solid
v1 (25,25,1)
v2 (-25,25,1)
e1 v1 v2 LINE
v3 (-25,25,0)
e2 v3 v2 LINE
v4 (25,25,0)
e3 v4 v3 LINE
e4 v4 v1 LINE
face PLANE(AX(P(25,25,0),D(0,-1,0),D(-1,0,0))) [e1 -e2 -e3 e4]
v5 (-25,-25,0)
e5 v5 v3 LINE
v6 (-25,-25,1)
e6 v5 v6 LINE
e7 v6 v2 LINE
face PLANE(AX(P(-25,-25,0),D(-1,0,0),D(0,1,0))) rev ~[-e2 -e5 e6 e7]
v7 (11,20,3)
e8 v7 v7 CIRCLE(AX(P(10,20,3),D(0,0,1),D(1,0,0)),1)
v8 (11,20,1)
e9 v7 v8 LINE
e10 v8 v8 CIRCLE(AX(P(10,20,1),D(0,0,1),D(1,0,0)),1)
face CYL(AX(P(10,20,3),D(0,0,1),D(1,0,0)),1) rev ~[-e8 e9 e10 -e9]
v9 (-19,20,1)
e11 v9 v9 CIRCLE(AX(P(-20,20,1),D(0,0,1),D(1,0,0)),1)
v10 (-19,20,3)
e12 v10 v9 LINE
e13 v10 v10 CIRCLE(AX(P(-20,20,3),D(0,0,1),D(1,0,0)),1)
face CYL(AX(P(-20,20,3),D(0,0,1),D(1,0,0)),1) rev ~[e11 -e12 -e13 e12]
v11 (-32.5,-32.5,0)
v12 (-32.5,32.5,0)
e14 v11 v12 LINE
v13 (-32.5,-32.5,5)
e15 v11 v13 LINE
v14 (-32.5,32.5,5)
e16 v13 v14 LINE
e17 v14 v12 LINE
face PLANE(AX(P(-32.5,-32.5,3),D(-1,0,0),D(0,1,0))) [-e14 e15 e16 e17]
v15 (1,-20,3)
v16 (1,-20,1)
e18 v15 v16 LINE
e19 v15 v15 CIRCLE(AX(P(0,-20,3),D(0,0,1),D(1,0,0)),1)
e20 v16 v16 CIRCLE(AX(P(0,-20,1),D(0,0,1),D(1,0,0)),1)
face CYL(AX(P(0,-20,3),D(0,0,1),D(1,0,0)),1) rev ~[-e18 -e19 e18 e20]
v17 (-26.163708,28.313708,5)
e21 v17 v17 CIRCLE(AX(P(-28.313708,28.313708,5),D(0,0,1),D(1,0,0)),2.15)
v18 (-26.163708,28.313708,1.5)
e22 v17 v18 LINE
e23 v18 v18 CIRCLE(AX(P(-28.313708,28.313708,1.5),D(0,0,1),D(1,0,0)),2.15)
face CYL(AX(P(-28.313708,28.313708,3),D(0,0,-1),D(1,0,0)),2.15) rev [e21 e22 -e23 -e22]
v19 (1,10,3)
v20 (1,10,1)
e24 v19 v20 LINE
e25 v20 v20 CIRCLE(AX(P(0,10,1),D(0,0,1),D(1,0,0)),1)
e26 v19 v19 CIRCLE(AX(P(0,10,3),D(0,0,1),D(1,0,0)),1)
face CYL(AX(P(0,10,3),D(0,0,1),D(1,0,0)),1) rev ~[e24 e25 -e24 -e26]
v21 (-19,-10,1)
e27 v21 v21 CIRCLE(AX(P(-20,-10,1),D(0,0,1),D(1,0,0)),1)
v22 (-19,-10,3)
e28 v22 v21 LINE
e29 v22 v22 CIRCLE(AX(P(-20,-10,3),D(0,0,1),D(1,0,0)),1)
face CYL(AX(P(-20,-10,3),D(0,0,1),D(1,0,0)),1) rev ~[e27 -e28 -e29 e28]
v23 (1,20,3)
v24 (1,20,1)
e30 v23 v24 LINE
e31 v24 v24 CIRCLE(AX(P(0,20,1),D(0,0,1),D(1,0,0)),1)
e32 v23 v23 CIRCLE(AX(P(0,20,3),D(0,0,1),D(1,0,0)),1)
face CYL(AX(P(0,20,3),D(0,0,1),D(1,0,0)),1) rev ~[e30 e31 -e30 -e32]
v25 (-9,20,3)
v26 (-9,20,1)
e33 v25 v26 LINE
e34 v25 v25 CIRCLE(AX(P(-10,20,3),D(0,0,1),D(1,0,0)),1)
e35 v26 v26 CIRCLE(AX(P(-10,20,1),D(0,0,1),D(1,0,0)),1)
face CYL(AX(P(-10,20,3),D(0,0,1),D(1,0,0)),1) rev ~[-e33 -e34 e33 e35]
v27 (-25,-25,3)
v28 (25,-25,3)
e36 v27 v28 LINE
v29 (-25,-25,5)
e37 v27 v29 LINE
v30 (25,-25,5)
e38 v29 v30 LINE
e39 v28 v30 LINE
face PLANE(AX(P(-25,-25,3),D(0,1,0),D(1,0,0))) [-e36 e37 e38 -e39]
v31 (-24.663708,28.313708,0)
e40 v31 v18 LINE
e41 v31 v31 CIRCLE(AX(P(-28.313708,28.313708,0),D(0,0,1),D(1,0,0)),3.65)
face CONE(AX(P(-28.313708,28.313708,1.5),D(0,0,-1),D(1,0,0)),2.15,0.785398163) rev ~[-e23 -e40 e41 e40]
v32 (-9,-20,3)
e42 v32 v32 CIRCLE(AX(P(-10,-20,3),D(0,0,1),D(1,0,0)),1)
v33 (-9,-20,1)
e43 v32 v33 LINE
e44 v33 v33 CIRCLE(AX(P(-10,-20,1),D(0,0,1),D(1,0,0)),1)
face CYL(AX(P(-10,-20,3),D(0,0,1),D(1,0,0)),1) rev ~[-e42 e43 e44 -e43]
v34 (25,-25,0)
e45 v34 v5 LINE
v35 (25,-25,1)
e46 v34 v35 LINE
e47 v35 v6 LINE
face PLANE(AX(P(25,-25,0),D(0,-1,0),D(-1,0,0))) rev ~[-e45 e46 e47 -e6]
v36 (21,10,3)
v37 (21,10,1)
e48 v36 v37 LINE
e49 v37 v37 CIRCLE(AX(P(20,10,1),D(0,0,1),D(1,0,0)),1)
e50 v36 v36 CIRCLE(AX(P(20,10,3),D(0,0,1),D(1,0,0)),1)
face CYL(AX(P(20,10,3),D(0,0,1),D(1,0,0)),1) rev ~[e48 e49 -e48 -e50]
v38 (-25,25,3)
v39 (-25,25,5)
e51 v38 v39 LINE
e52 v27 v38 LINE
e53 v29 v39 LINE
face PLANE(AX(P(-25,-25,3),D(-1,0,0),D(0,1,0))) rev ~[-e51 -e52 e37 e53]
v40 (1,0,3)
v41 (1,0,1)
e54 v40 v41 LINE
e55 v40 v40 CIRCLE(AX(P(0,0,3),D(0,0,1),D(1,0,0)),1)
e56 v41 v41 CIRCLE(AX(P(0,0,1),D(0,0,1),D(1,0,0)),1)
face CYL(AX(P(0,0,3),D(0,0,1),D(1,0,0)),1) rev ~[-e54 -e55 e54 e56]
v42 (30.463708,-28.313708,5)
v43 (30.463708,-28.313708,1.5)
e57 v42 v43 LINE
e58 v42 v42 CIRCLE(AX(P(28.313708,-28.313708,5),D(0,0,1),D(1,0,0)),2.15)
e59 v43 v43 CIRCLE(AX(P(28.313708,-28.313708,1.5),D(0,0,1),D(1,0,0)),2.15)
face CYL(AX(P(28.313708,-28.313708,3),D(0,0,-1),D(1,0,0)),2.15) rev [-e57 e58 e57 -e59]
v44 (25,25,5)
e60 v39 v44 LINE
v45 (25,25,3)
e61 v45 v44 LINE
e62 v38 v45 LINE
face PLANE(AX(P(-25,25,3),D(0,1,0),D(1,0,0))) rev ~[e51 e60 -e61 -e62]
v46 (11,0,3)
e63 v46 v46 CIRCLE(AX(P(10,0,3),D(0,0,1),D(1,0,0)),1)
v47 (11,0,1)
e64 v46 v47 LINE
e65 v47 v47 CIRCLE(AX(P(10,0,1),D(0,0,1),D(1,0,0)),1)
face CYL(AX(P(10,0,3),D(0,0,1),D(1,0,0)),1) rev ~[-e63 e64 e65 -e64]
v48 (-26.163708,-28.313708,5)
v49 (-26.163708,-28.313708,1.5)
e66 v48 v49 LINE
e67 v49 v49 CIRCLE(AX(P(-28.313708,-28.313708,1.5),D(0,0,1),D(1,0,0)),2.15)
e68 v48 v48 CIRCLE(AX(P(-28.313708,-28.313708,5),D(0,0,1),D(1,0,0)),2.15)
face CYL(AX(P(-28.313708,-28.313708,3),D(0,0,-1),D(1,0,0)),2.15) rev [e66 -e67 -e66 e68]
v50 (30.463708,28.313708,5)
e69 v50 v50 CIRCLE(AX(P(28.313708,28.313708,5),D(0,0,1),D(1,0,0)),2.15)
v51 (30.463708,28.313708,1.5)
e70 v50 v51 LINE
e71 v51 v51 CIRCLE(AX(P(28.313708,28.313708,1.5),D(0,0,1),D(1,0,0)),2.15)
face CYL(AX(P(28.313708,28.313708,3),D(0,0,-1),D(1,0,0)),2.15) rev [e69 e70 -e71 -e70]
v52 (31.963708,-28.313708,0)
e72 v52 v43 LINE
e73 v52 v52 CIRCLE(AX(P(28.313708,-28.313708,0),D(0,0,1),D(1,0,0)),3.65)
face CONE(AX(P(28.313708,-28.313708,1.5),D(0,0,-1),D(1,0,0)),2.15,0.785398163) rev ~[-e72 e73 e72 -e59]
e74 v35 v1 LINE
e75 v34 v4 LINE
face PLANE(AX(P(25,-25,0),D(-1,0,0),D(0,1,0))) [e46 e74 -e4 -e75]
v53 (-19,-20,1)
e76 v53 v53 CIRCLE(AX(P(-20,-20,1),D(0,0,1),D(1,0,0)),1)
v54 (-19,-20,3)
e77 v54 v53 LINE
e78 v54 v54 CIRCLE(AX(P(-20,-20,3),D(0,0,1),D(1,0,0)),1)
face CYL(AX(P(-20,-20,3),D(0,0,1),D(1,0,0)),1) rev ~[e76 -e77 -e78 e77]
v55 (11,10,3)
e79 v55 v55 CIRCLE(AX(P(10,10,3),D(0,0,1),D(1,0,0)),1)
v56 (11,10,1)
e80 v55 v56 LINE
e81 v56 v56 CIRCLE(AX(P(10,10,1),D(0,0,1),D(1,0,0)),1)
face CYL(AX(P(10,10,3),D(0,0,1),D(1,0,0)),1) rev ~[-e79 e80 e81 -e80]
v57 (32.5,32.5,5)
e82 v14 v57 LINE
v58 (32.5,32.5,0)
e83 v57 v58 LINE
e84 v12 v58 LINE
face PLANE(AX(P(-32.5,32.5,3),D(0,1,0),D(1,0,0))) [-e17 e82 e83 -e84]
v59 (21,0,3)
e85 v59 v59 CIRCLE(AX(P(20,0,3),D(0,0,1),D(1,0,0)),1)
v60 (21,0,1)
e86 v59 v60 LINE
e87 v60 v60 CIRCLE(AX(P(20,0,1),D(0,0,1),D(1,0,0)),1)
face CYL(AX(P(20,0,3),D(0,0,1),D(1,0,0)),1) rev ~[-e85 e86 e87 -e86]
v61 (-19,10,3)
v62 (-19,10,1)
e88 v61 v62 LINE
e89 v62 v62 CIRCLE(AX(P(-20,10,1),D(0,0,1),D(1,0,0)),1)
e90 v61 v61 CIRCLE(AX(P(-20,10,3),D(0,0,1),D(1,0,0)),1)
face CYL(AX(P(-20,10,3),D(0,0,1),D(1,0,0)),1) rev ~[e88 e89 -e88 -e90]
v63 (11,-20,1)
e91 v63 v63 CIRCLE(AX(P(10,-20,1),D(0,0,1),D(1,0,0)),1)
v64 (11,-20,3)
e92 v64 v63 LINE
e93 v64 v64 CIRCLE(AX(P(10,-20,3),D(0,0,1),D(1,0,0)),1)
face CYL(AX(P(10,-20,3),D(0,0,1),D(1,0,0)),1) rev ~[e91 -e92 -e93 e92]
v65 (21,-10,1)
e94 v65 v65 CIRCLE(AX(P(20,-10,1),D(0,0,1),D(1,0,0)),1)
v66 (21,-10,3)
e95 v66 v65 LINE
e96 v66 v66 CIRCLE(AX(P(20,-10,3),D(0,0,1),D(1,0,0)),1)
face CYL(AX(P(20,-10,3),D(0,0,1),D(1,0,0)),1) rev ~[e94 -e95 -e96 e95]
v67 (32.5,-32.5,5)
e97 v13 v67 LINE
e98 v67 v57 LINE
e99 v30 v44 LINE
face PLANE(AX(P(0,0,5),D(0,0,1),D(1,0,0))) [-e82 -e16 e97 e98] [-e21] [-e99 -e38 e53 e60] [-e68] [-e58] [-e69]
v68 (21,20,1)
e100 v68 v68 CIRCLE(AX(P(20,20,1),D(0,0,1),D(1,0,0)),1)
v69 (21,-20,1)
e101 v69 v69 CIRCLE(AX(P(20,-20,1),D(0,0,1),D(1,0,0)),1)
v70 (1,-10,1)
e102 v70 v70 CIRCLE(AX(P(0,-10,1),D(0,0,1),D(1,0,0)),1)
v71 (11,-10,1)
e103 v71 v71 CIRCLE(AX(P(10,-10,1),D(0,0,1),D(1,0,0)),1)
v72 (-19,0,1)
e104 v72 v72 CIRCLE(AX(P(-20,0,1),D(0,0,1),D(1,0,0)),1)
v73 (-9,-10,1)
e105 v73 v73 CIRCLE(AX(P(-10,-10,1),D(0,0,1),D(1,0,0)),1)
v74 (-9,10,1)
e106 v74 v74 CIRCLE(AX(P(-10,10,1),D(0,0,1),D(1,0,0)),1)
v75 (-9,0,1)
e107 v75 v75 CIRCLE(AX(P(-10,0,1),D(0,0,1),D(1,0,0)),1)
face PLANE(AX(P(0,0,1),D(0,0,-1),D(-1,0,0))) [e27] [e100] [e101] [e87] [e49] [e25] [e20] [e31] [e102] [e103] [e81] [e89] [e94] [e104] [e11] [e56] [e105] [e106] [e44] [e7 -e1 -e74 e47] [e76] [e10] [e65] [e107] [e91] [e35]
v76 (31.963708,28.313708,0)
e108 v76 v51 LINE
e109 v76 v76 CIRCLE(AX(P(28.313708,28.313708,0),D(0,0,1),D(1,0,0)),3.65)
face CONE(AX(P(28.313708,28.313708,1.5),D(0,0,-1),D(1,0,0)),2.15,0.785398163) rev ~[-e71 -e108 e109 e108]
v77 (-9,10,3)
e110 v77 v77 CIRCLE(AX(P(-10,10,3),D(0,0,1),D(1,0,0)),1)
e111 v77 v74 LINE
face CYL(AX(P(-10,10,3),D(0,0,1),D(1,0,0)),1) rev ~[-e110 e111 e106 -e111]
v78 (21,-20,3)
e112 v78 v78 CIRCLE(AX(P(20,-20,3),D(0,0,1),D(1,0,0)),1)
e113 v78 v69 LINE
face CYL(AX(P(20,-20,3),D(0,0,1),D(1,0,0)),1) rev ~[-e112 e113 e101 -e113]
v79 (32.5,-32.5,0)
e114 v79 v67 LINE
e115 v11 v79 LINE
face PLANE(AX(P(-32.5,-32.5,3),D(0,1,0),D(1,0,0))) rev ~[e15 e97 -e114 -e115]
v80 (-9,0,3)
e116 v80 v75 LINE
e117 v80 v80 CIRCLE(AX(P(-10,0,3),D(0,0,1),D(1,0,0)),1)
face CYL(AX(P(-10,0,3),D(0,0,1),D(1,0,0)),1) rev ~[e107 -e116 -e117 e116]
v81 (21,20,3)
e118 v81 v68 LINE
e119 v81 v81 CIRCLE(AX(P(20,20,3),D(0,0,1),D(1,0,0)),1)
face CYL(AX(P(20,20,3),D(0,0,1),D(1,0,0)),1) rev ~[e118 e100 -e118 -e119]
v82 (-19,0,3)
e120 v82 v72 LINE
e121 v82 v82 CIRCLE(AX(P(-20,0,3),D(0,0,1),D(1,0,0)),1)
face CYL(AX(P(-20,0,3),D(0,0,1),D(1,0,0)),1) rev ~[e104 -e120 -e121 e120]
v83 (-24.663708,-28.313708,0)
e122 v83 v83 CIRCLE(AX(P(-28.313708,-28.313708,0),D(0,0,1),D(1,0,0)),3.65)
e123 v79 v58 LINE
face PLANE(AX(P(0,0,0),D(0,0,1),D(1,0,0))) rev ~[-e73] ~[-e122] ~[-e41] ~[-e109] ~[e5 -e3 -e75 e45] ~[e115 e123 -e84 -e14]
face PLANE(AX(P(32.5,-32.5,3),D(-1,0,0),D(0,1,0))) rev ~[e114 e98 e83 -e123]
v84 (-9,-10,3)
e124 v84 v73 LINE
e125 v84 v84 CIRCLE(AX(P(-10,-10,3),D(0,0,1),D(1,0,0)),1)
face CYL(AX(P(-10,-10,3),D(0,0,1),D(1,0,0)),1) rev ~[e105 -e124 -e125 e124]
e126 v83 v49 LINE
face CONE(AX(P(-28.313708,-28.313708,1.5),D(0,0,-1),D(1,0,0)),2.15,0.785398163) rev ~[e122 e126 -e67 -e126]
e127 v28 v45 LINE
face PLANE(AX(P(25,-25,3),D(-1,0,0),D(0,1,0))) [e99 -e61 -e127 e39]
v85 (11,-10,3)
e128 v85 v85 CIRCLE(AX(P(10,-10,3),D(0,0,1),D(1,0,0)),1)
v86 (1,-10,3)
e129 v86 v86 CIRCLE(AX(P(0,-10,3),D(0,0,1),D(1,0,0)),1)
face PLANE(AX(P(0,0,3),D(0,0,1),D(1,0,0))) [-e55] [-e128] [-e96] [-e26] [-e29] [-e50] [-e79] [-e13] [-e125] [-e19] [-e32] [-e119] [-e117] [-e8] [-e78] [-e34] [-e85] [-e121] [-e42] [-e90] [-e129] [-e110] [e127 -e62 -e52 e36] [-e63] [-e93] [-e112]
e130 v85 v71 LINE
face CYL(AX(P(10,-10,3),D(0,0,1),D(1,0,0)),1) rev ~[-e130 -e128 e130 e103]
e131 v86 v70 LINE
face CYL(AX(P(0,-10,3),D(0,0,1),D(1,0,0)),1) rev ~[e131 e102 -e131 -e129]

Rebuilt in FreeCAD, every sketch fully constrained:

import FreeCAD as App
import Part
import Sketcher
from FreeCAD import Vector


def edges_at(feature, points):
    """Names of the edges that pass closest to the given points."""
    edges = feature.Shape.Edges
    near = lambda p: min(range(len(edges)), key=lambda i: edges[i].distToShape(Part.Vertex(*p))[0])
    return sorted({f"Edge{near(p) + 1}" for p in points})


def add_polygon(sketch, points):
    """Adds a closed chain of lines whose ends are joined by coincident constraints."""
    first, n = sketch.GeometryCount, len(points)
    for a, b in zip(points, points[1:] + points[:1]):
        sketch.addGeometry(Part.LineSegment(App.Vector(*a, 0), App.Vector(*b, 0)), False)
    for i in range(n):
        sketch.addConstraint(Sketcher.Constraint("Coincident", first + i, 2, first + (i + 1) % n, 1))

doc = App.newDocument("Part")
body = doc.addObject("PartDesign::Body", "Body")

sketch1 = doc.addObject("Sketcher::SketchObject", "Sketch")
body.addObject(sketch1)
sketch1.AttachmentSupport = (doc.XY_Plane, [""])
sketch1.MapMode = "FlatFace"
add_polygon(sketch1, [(-32.5, 32.5), (-32.5, -32.5), (32.5, -32.5), (32.5, 32.5)])
sketch1.addGeometry(Part.Circle(Vector(-28.313708, -28.313708, 0), Vector(0, 0, 1), 2.15), False)
sketch1.addGeometry(Part.Circle(Vector(28.313708, -28.313708, 0), Vector(0, 0, 1), 2.15), False)
sketch1.addGeometry(Part.Circle(Vector(-28.313708, 28.313708, 0), Vector(0, 0, 1), 2.15), False)
sketch1.addGeometry(Part.Circle(Vector(28.313708, 28.313708, 0), Vector(0, 0, 1), 2.15), False)
sketch1.addConstraint([
    Sketcher.Constraint("Vertical", 0),
    Sketcher.Constraint("Horizontal", 1),
    Sketcher.Constraint("Vertical", 2),
    Sketcher.Constraint("Horizontal", 3),
    Sketcher.Constraint("Equal", 4, 5),
    Sketcher.Constraint("Equal", 5, 6),
    Sketcher.Constraint("Equal", 6, 7),
    Sketcher.Constraint("Symmetric", 5, 3, 6, 3, -1, 1),
    Sketcher.Constraint("Symmetric", 4, 3, 7, 3, -1, 1),
    Sketcher.Constraint("Symmetric", 0, 2, 2, 2, -1, 1),
    Sketcher.Constraint("Symmetric", 4, 3, 5, 3, -2),
    Sketcher.Constraint("Equal", 3, 0),
    Sketcher.Constraint("Diameter", 4, 4.3),
    Sketcher.Constraint("DistanceX", 1, 1, 1, 2, 65.0),
    Sketcher.Constraint("DistanceX", 4, 3, -1, 1, 28.313708),
    Sketcher.Constraint("DistanceY", 4, 3, -1, 1, 28.313708),
])
pad1 = doc.addObject("PartDesign::Pad", "Pad")
body.addObject(pad1)
pad1.Profile = sketch1
pad1.Length = 3

sketch2 = doc.addObject("Sketcher::SketchObject", "Sketch001")
body.addObject(sketch2)
sketch2.AttachmentSupport = (doc.XY_Plane, [""])
sketch2.MapMode = "FlatFace"
sketch2.AttachmentOffset = App.Placement(Vector(0, 0, 3), App.Rotation())
add_polygon(sketch2, [(-32.5, 32.5), (-32.5, -32.5), (32.5, -32.5), (32.5, 32.5)])
sketch2.addGeometry(Part.Circle(Vector(-28.313708, -28.313708, 0), Vector(0, 0, 1), 2.15), False)
add_polygon(sketch2, [(25, -25), (-25, -25), (-25, 25), (25, 25)])
sketch2.addGeometry(Part.Circle(Vector(28.313708, -28.313708, 0), Vector(0, 0, 1), 2.15), False)
sketch2.addGeometry(Part.Circle(Vector(-28.313708, 28.313708, 0), Vector(0, 0, 1), 2.15), False)
sketch2.addGeometry(Part.Circle(Vector(28.313708, 28.313708, 0), Vector(0, 0, 1), 2.15), False)
sketch2.addConstraint([
    Sketcher.Constraint("Vertical", 0),
    Sketcher.Constraint("Horizontal", 1),
    Sketcher.Constraint("Vertical", 2),
    Sketcher.Constraint("Horizontal", 3),
    Sketcher.Constraint("Horizontal", 5),
    Sketcher.Constraint("Vertical", 6),
    Sketcher.Constraint("Horizontal", 7),
    Sketcher.Constraint("Vertical", 8),
    Sketcher.Constraint("Equal", 4, 9),
    Sketcher.Constraint("Equal", 9, 10),
    Sketcher.Constraint("Equal", 10, 11),
    Sketcher.Constraint("Symmetric", 9, 3, 10, 3, -1, 1),
    Sketcher.Constraint("Symmetric", 4, 3, 11, 3, -1, 1),
    Sketcher.Constraint("Symmetric", 0, 2, 2, 2, -1, 1),
    Sketcher.Constraint("Symmetric", 5, 2, 7, 2, -1, 1),
    Sketcher.Constraint("Symmetric", 4, 3, 9, 3, -2),
    Sketcher.Constraint("Equal", 3, 0),
    Sketcher.Constraint("Equal", 7, 6),
    Sketcher.Constraint("Diameter", 4, 4.3),
    Sketcher.Constraint("DistanceX", 1, 1, 1, 2, 65.0),
    Sketcher.Constraint("DistanceX", 5, 2, 5, 1, 50.0),
    Sketcher.Constraint("DistanceX", 4, 3, -1, 1, 28.313708),
    Sketcher.Constraint("DistanceY", 4, 3, -1, 1, 28.313708),
])
pad2 = doc.addObject("PartDesign::Pad", "Pad001")
body.addObject(pad2)
pad2.Profile = sketch2
pad2.Length = 2

sketch3 = doc.addObject("Sketcher::SketchObject", "Sketch002")
body.addObject(sketch3)
sketch3.AttachmentSupport = (doc.XY_Plane, [""])
sketch3.MapMode = "FlatFace"
sketch3.AttachmentOffset = App.Placement(Vector(0, 0, 3), App.Rotation())
sketch3.addGeometry([
    Part.Circle(Vector(-20, -20, 0), Vector(0, 0, 1), 1),
    Part.Circle(Vector(-10, -20, 0), Vector(0, 0, 1), 1),
    Part.Circle(Vector(0, -20, 0), Vector(0, 0, 1), 1),
    Part.Circle(Vector(10, -20, 0), Vector(0, 0, 1), 1),
    Part.Circle(Vector(20, -20, 0), Vector(0, 0, 1), 1),
    Part.Circle(Vector(-10, -10, 0), Vector(0, 0, 1), 1),
    Part.Circle(Vector(0, -10, 0), Vector(0, 0, 1), 1),
    Part.Circle(Vector(10, -10, 0), Vector(0, 0, 1), 1),
    Part.Circle(Vector(20, -10, 0), Vector(0, 0, 1), 1),
    Part.Circle(Vector(-10, 0, 0), Vector(0, 0, 1), 1),
    Part.Circle(Vector(0, 0, 0), Vector(0, 0, 1), 1),
    Part.Circle(Vector(10, 0, 0), Vector(0, 0, 1), 1),
    Part.Circle(Vector(20, 0, 0), Vector(0, 0, 1), 1),
    Part.Circle(Vector(-10, 10, 0), Vector(0, 0, 1), 1),
    Part.Circle(Vector(0, 10, 0), Vector(0, 0, 1), 1),
    Part.Circle(Vector(10, 10, 0), Vector(0, 0, 1), 1),
    Part.Circle(Vector(20, 10, 0), Vector(0, 0, 1), 1),
    Part.Circle(Vector(-10, 20, 0), Vector(0, 0, 1), 1),
    Part.Circle(Vector(0, 20, 0), Vector(0, 0, 1), 1),
    Part.Circle(Vector(10, 20, 0), Vector(0, 0, 1), 1),
    Part.Circle(Vector(20, 20, 0), Vector(0, 0, 1), 1),
    Part.Circle(Vector(-20, -10, 0), Vector(0, 0, 1), 1),
    Part.Circle(Vector(-20, 0, 0), Vector(0, 0, 1), 1),
    Part.Circle(Vector(-20, 10, 0), Vector(0, 0, 1), 1),
    Part.Circle(Vector(-20, 20, 0), Vector(0, 0, 1), 1),
], False)
sketch3.addConstraint([
    Sketcher.Constraint("Coincident", 10, 3, -1, 1),
    Sketcher.Constraint("Equal", 0, 1),
    Sketcher.Constraint("Equal", 1, 2),
    Sketcher.Constraint("Equal", 2, 3),
    Sketcher.Constraint("Equal", 3, 4),
    Sketcher.Constraint("Equal", 4, 5),
    Sketcher.Constraint("Equal", 5, 6),
    Sketcher.Constraint("Equal", 6, 7),
    Sketcher.Constraint("Equal", 7, 8),
    Sketcher.Constraint("Equal", 8, 9),
    Sketcher.Constraint("Equal", 9, 10),
    Sketcher.Constraint("Equal", 10, 11),
    Sketcher.Constraint("Equal", 11, 12),
    Sketcher.Constraint("Equal", 12, 13),
    Sketcher.Constraint("Equal", 13, 14),
    Sketcher.Constraint("Equal", 14, 15),
    Sketcher.Constraint("Equal", 15, 16),
    Sketcher.Constraint("Equal", 16, 17),
    Sketcher.Constraint("Equal", 17, 18),
    Sketcher.Constraint("Equal", 18, 19),
    Sketcher.Constraint("Equal", 19, 20),
    Sketcher.Constraint("Equal", 20, 21),
    Sketcher.Constraint("Equal", 21, 22),
    Sketcher.Constraint("Equal", 22, 23),
    Sketcher.Constraint("Equal", 23, 24),
    Sketcher.Constraint("Symmetric", 9, 3, 11, 3, -1, 1),
    Sketcher.Constraint("Symmetric", 7, 3, 13, 3, -1, 1),
    Sketcher.Constraint("Symmetric", 6, 3, 14, 3, -1, 1),
    Sketcher.Constraint("Symmetric", 5, 3, 15, 3, -1, 1),
    Sketcher.Constraint("Symmetric", 3, 3, 17, 3, -1, 1),
    Sketcher.Constraint("Symmetric", 2, 3, 18, 3, -1, 1),
    Sketcher.Constraint("Symmetric", 1, 3, 19, 3, -1, 1),
    Sketcher.Constraint("Symmetric", 0, 3, 20, 3, -1, 1),
    Sketcher.Constraint("Symmetric", 16, 3, 21, 3, -1, 1),
    Sketcher.Constraint("Symmetric", 12, 3, 22, 3, -1, 1),
    Sketcher.Constraint("Symmetric", 8, 3, 23, 3, -1, 1),
    Sketcher.Constraint("Symmetric", 4, 3, 24, 3, -1, 1),
    Sketcher.Constraint("Symmetric", 1, 3, 3, 3, -2),
    Sketcher.Constraint("Symmetric", 0, 3, 4, 3, -2),
    Sketcher.Constraint("Symmetric", 5, 3, 7, 3, -2),
    Sketcher.Constraint("Symmetric", 8, 3, 21, 3, -2),
    Sketcher.Constraint("PointOnObject", 2, 3, -2),
    Sketcher.Constraint("PointOnObject", 6, 3, -2),
    Sketcher.Constraint("PointOnObject", 9, 3, -1),
    Sketcher.Constraint("PointOnObject", 12, 3, -1),
    Sketcher.Constraint("Horizontal", 0, 3, 1, 3),
    Sketcher.Constraint("Horizontal", 1, 3, 2, 3),
    Sketcher.Constraint("Horizontal", 5, 3, 6, 3),
    Sketcher.Constraint("Horizontal", 7, 3, 8, 3),
    Sketcher.Constraint("Vertical", 1, 3, 5, 3),
    Sketcher.Constraint("Vertical", 4, 3, 8, 3),
    Sketcher.Constraint("Vertical", 5, 3, 9, 3),
    Sketcher.Constraint("Vertical", 8, 3, 12, 3),
    Sketcher.Constraint("Diameter", 0, 2.0),
    Sketcher.Constraint("DistanceX", 0, 3, -1, 1, 20.0),
    Sketcher.Constraint("DistanceY", 0, 3, -1, 1, 20.0),
    Sketcher.Constraint("DistanceX", 1, 3, -1, 1, 10.0),
    Sketcher.Constraint("DistanceY", 5, 3, -1, 1, 10.0),
])
pocket1 = doc.addObject("PartDesign::Pocket", "Pocket")
body.addObject(pocket1)
pocket1.Profile = sketch3
pocket1.Type = "ThroughAll"
doc.recompute()

chamfer = doc.addObject("PartDesign::Chamfer", "Chamfer")
body.addObject(chamfer)
chamfer.Base = (pocket1, edges_at(pocket1, [
    (-30.464, 28.314, 0),
    (-30.464, -28.314, 0),
    (26.164, -28.314, 0),
    (26.164, 28.314, 0),
]))
chamfer.Size = 1.5

sketch4 = doc.addObject("Sketcher::SketchObject", "Sketch003")
body.addObject(sketch4)
sketch4.AttachmentSupport = (doc.XY_Plane, [""])
sketch4.MapMode = "FlatFace"
add_polygon(sketch4, [(25, 25), (25, -25), (-25, -25), (-25, 25)])
sketch4.addConstraint([
    Sketcher.Constraint("Vertical", 0),
    Sketcher.Constraint("Horizontal", 1),
    Sketcher.Constraint("Vertical", 2),
    Sketcher.Constraint("Horizontal", 3),
    Sketcher.Constraint("Symmetric", 0, 2, 2, 2, -1, 1),
    Sketcher.Constraint("Equal", 3, 0),
    Sketcher.Constraint("DistanceX", 1, 2, 1, 1, 50.0),
])
pocket2 = doc.addObject("PartDesign::Pocket", "Pocket001")
body.addObject(pocket2)
pocket2.Profile = sketch4
pocket2.Length = 1
pocket2.Reversed = True

doc.recompute()
